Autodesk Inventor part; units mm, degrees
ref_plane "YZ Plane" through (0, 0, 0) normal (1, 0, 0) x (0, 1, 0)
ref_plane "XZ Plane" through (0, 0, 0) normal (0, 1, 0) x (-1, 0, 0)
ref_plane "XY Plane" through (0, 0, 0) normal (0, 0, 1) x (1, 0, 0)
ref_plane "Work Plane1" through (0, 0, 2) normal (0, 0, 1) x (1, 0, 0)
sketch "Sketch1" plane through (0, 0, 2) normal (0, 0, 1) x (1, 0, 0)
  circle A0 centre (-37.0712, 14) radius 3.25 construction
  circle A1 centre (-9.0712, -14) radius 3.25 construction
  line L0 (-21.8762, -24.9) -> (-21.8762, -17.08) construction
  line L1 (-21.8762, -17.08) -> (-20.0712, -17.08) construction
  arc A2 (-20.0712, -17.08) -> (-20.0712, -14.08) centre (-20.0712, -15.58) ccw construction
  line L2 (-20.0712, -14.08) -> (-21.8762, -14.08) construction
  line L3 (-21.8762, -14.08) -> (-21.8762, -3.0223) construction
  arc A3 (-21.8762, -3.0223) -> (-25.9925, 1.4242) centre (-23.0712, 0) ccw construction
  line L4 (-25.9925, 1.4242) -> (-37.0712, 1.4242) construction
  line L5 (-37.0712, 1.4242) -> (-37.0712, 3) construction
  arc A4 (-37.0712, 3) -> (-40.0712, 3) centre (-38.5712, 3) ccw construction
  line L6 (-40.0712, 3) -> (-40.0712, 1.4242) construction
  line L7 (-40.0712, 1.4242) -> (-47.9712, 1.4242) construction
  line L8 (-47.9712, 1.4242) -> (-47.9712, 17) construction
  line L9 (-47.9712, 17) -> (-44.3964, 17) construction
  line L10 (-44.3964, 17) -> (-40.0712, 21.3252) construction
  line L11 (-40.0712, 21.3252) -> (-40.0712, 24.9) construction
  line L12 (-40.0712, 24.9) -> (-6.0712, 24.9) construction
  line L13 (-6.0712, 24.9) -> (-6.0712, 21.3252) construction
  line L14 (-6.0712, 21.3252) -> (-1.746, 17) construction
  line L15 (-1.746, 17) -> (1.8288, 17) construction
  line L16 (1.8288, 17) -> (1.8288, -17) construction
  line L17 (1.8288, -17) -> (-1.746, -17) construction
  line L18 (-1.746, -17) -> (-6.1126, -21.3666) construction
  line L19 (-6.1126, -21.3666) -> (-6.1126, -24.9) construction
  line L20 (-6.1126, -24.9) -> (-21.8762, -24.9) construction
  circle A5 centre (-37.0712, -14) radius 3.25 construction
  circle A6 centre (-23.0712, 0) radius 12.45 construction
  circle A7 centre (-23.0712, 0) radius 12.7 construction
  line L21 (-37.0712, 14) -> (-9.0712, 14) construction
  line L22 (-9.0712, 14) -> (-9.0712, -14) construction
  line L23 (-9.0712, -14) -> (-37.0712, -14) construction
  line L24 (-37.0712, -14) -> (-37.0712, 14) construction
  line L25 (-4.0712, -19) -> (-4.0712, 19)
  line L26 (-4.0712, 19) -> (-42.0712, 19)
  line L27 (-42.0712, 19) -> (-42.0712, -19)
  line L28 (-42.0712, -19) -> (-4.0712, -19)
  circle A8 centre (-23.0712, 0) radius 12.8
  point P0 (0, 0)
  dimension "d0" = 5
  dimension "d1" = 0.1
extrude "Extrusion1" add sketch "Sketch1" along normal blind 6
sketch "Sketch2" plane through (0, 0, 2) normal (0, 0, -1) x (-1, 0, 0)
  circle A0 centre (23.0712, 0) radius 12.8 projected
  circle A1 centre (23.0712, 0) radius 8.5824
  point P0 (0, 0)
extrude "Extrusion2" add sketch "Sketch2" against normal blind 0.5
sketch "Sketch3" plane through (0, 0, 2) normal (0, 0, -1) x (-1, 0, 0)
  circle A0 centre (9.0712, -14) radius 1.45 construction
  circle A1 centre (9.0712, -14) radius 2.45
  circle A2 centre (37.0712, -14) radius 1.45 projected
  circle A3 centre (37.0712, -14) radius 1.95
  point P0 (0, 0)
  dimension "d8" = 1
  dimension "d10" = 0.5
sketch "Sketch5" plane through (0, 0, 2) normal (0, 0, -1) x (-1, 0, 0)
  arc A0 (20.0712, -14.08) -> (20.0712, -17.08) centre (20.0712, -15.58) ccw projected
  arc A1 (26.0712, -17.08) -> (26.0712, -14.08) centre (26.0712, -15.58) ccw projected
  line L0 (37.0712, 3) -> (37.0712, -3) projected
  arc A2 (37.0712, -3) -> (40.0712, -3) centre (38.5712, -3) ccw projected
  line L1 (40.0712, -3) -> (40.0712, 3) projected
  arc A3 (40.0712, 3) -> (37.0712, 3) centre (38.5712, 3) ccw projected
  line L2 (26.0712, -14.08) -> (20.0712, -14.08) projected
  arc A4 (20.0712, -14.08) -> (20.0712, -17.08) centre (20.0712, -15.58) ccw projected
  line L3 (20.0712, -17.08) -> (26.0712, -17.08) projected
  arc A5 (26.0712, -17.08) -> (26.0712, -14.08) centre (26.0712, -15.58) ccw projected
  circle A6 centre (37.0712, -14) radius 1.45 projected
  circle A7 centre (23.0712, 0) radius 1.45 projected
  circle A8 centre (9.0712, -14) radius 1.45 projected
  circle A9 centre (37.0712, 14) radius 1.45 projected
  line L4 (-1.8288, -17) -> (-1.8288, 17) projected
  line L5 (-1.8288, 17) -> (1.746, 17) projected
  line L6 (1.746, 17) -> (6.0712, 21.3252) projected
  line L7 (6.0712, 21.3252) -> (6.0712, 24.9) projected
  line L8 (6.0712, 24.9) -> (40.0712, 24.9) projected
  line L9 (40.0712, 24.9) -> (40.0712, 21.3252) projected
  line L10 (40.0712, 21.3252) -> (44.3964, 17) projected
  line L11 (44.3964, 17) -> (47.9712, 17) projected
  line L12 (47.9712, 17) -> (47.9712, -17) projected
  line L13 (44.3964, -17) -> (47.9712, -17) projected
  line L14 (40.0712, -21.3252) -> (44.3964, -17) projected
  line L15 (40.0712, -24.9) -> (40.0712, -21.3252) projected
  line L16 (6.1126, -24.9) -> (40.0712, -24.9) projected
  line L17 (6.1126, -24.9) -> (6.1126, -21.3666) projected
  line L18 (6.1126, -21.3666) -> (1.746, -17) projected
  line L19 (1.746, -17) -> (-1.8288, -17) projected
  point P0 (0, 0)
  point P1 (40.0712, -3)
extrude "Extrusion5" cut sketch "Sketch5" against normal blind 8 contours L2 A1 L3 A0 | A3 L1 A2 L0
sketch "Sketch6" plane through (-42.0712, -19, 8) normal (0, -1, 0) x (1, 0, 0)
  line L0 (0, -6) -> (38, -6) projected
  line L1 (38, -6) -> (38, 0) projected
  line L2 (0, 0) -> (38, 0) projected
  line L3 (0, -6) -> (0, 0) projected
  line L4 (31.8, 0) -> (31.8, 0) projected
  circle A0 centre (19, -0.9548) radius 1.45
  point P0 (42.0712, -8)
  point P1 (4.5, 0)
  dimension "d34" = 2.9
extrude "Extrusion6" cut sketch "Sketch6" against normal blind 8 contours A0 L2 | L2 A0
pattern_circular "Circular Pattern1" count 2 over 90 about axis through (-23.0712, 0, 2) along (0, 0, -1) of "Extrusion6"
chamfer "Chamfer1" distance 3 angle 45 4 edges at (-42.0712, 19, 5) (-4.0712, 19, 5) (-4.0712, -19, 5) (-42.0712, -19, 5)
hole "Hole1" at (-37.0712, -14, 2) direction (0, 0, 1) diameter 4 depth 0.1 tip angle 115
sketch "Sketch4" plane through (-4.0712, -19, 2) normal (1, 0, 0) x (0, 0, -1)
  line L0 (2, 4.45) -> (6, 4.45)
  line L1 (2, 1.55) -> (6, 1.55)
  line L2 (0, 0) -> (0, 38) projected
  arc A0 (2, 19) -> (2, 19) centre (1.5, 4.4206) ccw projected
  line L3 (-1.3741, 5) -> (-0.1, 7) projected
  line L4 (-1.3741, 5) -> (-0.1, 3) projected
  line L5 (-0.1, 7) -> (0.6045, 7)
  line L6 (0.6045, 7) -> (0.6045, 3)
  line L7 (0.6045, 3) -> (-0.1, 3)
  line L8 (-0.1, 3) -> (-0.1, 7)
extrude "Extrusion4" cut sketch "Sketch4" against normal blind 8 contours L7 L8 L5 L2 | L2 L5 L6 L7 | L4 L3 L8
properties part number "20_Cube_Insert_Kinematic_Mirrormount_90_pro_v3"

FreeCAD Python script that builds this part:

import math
import FreeCAD as App
import Part
import Sketcher

V = App.Vector
Q = App.Units.Quantity


def edges_at(feature, points):
    """Names of the edges that pass closest to the given points."""
    edges = feature.Shape.Edges
    near = lambda p: min(range(len(edges)), key=lambda i: edges[i].distToShape(Part.Vertex(*p))[0])
    return sorted({f"Edge{near(p) + 1}" for p in points})

doc = App.newDocument("Part")
body = doc.addObject("PartDesign::Body", "Body")

# Sketch on XY plane
sketch1 = body.newObject("Sketcher::SketchObject", "Sketch")
sketch1.AttachmentSupport = (doc.getObject("XY_Plane"), [""])
sketch1.MapMode = "FlatFace"
sketch1.AttachmentOffset = App.Placement(V(0, 0, 2), App.Rotation())
sketch1.addGeometry(Part.LineSegment(V(-42.0712, -19, 0), V(-4.0712, -19, 0)), False)
sketch1.addGeometry(Part.LineSegment(V(-4.0712, -19, 0), V(-4.0712, 19, 0)), False)
sketch1.addGeometry(Part.LineSegment(V(-4.0712, 19, 0), V(-42.0712, 19, 0)), False)
sketch1.addGeometry(Part.LineSegment(V(-42.0712, 19, 0), V(-42.0712, -19, 0)), False)
sketch1.addGeometry(Part.Circle(V(-23.0712, 0, 0), V(0, 0, 1), 12.8), False)
sketch1.addConstraint(Sketcher.Constraint("Coincident", 0, 2, 1, 1))
sketch1.addConstraint(Sketcher.Constraint("Coincident", 1, 2, 2, 1))
sketch1.addConstraint(Sketcher.Constraint("Coincident", 2, 2, 3, 1))
sketch1.addConstraint(Sketcher.Constraint("Coincident", 3, 2, 0, 1))
sketch1.addConstraint(Sketcher.Constraint("Horizontal", 0))
sketch1.addConstraint(Sketcher.Constraint("Vertical", 1))
sketch1.addConstraint(Sketcher.Constraint("Horizontal", 2))
sketch1.addConstraint(Sketcher.Constraint("Vertical", 3))
sketch1.addConstraint(Sketcher.Constraint("PointOnObject", 4, 3, -1))
sketch1.addConstraint(Sketcher.Constraint("Equal", 2, 1))
sketch1.addConstraint(Sketcher.Constraint("Diameter", 4, Q("25.6 mm")))
sketch1.addConstraint(Sketcher.Constraint("DistanceX", 0, 1, 0, 2, Q("38 mm")))
sketch1.addConstraint(Sketcher.Constraint("DistanceY", 0, 2, -1, 1, Q("19 mm")))
sketch1.addConstraint(Sketcher.Constraint("DistanceX", 4, 3, 0, 2, Q("19 mm")))
sketch1.addConstraint(Sketcher.Constraint("DistanceX", 4, 3, -1, 1, Q("23.0712 mm")))
pad1 = body.newObject("PartDesign::Pad", "Pad")
pad1.Profile = sketch1
pad1.Length = 6

# Sketch on XY plane
sketch2 = body.newObject("Sketcher::SketchObject", "Sketch001")
sketch2.AttachmentSupport = (doc.getObject("XY_Plane"), [""])
sketch2.MapMode = "FlatFace"
sketch2.AttachmentOffset = App.Placement(V(0, 0, 2), App.Rotation())
sketch2.addGeometry(Part.Circle(V(-23.0712, 0, 0), V(0, 0, 1), 12.8), False)
sketch2.addGeometry(Part.Circle(V(-23.0712, 0, 0), V(0, 0, 1), 8.5824), False)
sketch2.addConstraint(Sketcher.Constraint("Coincident", 1, 3, 0, 3))
sketch2.addConstraint(Sketcher.Constraint("PointOnObject", 0, 3, -1))
sketch2.addConstraint(Sketcher.Constraint("Diameter", 0, Q("25.6 mm")))
sketch2.addConstraint(Sketcher.Constraint("Diameter", 1, Q("17.1648 mm")))
sketch2.addConstraint(Sketcher.Constraint("DistanceX", 0, 3, -1, 1, Q("23.0712 mm")))
pad2 = body.newObject("PartDesign::Pad", "Pad001")
pad2.Profile = sketch2
pad2.Length = 0.5

# Sketch on XY plane
sketch3 = body.newObject("Sketcher::SketchObject", "Sketch002")
sketch3.AttachmentSupport = (doc.getObject("XY_Plane"), [""])
sketch3.MapMode = "FlatFace"
sketch3.AttachmentOffset = App.Placement(V(0, 0, 2), App.Rotation())
sketch3.addGeometry(Part.LineSegment(V(-26.0712, -14.08, 0), V(-20.0712, -14.08, 0)), False)
sketch3.addGeometry(Part.ArcOfCircle(Part.Circle(V(-20.0712, -15.58, 0), V(0, 0, 1), 1.5), math.radians(-90), math.radians(90)), False)
sketch3.addGeometry(Part.LineSegment(V(-20.0712, -17.08, 0), V(-26.0712, -17.08, 0)), False)
sketch3.addGeometry(Part.ArcOfCircle(Part.Circle(V(-26.0712, -15.58, 0), V(0, 0, 1), 1.5), math.radians(90), math.radians(270)), False)
sketch3.addGeometry(Part.ArcOfCircle(Part.Circle(V(-38.5712, 3, 0), V(0, 0, 1), 1.5), math.radians(0), math.radians(180)), False)
sketch3.addGeometry(Part.LineSegment(V(-37.0712, 3, 0), V(-37.0712, -3, 0)), False)
sketch3.addGeometry(Part.ArcOfCircle(Part.Circle(V(-38.5712, -3, 0), V(0, 0, 1), 1.5), math.radians(180), math.radians(360)), False)
sketch3.addGeometry(Part.LineSegment(V(-40.0712, -3, 0), V(-40.0712, 3, 0)), False)
sketch3.addConstraint(Sketcher.Constraint("Tangent", 0, 2, 1, 2))
sketch3.addConstraint(Sketcher.Constraint("Tangent", 1, 1, 2, 1))
sketch3.addConstraint(Sketcher.Constraint("Tangent", 2, 2, 3, 2))
sketch3.addConstraint(Sketcher.Constraint("Tangent", 3, 1, 0, 1))
sketch3.addConstraint(Sketcher.Constraint("Tangent", 4, 1, 5, 1))
sketch3.addConstraint(Sketcher.Constraint("Tangent", 5, 2, 6, 2))
sketch3.addConstraint(Sketcher.Constraint("Tangent", 6, 1, 7, 1))
sketch3.addConstraint(Sketcher.Constraint("Tangent", 7, 2, 4, 2))
sketch3.addConstraint(Sketcher.Constraint("Horizontal", 0))
sketch3.addConstraint(Sketcher.Constraint("Horizontal", 2))
sketch3.addConstraint(Sketcher.Constraint("Vertical", 5))
sketch3.addConstraint(Sketcher.Constraint("Vertical", 7))
sketch3.addConstraint(Sketcher.Constraint("Equal", 3, 4))
sketch3.addConstraint(Sketcher.Constraint("Equal", 2, 5))
sketch3.addConstraint(Sketcher.Constraint("Radius", 1, Q("1.5 mm")))
sketch3.addConstraint(Sketcher.Constraint("DistanceX", 0, 1, 0, 2, Q("6 mm")))
sketch3.addConstraint(Sketcher.Constraint("DistanceY", -1, 1, 4, 3, Q("3 mm")))
sketch3.addConstraint(Sketcher.Constraint("DistanceX", 4, 1, 3, 1, Q("11 mm")))
sketch3.addConstraint(Sketcher.Constraint("DistanceY", 1, 3, -1, 1, Q("15.58 mm")))
sketch3.addConstraint(Sketcher.Constraint("DistanceX", 1, 3, -1, 1, Q("20.0712 mm")))
pocket1 = body.newObject("PartDesign::Pocket", "Pocket")
pocket1.Profile = sketch3
pocket1.Length = 8
pocket1.Reversed = True

# Sketch on XZ plane
sketch4 = body.newObject("Sketcher::SketchObject", "Sketch003")
sketch4.AttachmentSupport = (doc.getObject("XZ_Plane"), [""])
sketch4.MapMode = "FlatFace"
sketch4.AttachmentOffset = App.Placement(V(0, 0, 19), App.Rotation())
sketch4.addGeometry(Part.Circle(V(-23.0712, 7.0452, 0), V(0, 0, 1), 1.45), False)
sketch4.addConstraint(Sketcher.Constraint("Diameter", 0, Q("2.9 mm")))
sketch4.addConstraint(Sketcher.Constraint("DistanceX", 0, 3, -1, 1, Q("23.0712 mm")))
sketch4.addConstraint(Sketcher.Constraint("DistanceY", -1, 1, 0, 3, Q("7.0452 mm")))
pocket2 = body.newObject("PartDesign::Pocket", "Pocket001")
pocket2.Profile = sketch4
pocket2.Length = 8
doc.recompute()

datumline = body.newObject("PartDesign::Line", "DatumLine")
datumline.Placement = App.Placement(V(-23.0712, 0, 0), App.Rotation(V(0, 0, 1), V(0, 0, 1)))
polarpattern = body.newObject("PartDesign::PolarPattern", "PolarPattern")
polarpattern.Originals = [pocket2]
polarpattern.Axis = (datumline, [""])
polarpattern.Angle = 90
polarpattern.Occurrences = 2
polarpattern.Reversed = True
body.Tip = polarpattern
doc.recompute()

chamfer = body.newObject("PartDesign::Chamfer", "Chamfer")
chamfer.Base = (polarpattern, edges_at(polarpattern, [
    (-42.071, 19, 5),
    (-4.071, 19, 5),
    (-4.071, -19, 5),
    (-42.071, -19, 5),
]))
chamfer.Size = 3

# Sketch on XY plane
sketch5 = body.newObject("Sketcher::SketchObject", "Sketch004")
sketch5.AttachmentSupport = (doc.getObject("XY_Plane"), [""])
sketch5.MapMode = "FlatFace"
sketch5.AttachmentOffset = App.Placement(V(0, 0, 2), App.Rotation())
sketch5.addGeometry(Part.Circle(V(-37.0712, -14, 0), V(0, 0, 1), 2), False)
sketch5.addConstraint(Sketcher.Constraint("Diameter", 0, Q("4 mm")))
sketch5.addConstraint(Sketcher.Constraint("DistanceY", 0, 3, -1, 1, Q("14 mm")))
sketch5.addConstraint(Sketcher.Constraint("DistanceX", 0, 3, -1, 1, Q("37.0712 mm")))
doc.recompute()
hole = body.newObject("PartDesign::Hole", "Hole")
hole.Profile = sketch5
hole.ThreadType = "None"
hole.Diameter = 4
hole.DepthType = "Dimension"
hole.Depth = 0.1
hole.DrillPoint = "Angled"
hole.DrillPointAngle = 115
hole.Reversed = True

# Sketch on YZ plane
sketch6 = body.newObject("Sketcher::SketchObject", "Sketch005")
sketch6.AttachmentSupport = (doc.getObject("YZ_Plane"), [""])
sketch6.MapMode = "FlatFace"
sketch6.AttachmentOffset = App.Placement(V(0, 0, -4.0712), App.Rotation())
sketch6.addGeometry(Part.LineSegment(V(-16, 2.1, 0), V(-16, 1.3955, 0)), False)
sketch6.addGeometry(Part.LineSegment(V(-16, 1.3955, 0), V(-12, 1.3955, 0)), False)
sketch6.addGeometry(Part.LineSegment(V(-12, 1.3955, 0), V(-12, 2.1, 0)), False)
sketch6.addGeometry(Part.LineSegment(V(-12, 2.1, 0), V(-14, 3.3741, 0)), False)
sketch6.addGeometry(Part.LineSegment(V(-14, 3.3741, 0), V(-16, 2.1, 0)), False)
sketch6.addConstraint(Sketcher.Constraint("Coincident", 0, 2, 1, 1))
sketch6.addConstraint(Sketcher.Constraint("Coincident", 1, 2, 2, 1))
sketch6.addConstraint(Sketcher.Constraint("Coincident", 2, 2, 3, 1))
sketch6.addConstraint(Sketcher.Constraint("Coincident", 3, 2, 4, 1))
sketch6.addConstraint(Sketcher.Constraint("Coincident", 4, 2, 0, 1))
sketch6.addConstraint(Sketcher.Constraint("Vertical", 0))
sketch6.addConstraint(Sketcher.Constraint("Horizontal", 1))
sketch6.addConstraint(Sketcher.Constraint("Vertical", 2))
sketch6.addConstraint(Sketcher.Constraint("Horizontal", 2, 2, 4, 2))
sketch6.addConstraint(Sketcher.Constraint("Equal", 3, 4))
sketch6.addConstraint(Sketcher.Constraint("DistanceX", 1, 1, 1, 2, Q("4 mm")))
sketch6.addConstraint(Sketcher.Constraint("DistanceX", 0, 2, -1, 1, Q("16 mm")))
sketch6.addConstraint(Sketcher.Constraint("Angle", 3, Q("147.5008 deg")))
sketch6.addConstraint(Sketcher.Constraint("DistanceY", -1, 1, 2, 2, Q("2.1 mm")))
sketch6.addConstraint(Sketcher.Constraint("DistanceY", 0, 2, 0, 1, Q("0.7045 mm")))
pocket3 = body.newObject("PartDesign::Pocket", "Pocket002")
pocket3.Profile = sketch6
pocket3.Length = 8

doc.recompute()
